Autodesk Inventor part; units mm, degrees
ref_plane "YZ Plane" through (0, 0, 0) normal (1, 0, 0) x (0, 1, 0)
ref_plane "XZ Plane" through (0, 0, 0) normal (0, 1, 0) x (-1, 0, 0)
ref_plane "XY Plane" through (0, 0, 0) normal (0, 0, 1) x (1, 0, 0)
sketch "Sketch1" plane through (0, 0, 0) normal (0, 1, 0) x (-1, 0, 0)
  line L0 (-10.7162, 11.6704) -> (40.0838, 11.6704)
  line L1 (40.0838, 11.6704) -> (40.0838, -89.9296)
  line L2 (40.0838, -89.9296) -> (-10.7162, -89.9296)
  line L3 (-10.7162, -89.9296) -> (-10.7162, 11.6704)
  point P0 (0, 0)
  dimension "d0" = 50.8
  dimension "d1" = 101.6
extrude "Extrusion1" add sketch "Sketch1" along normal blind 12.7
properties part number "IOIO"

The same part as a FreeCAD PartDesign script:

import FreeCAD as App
import Part
import Sketcher

V = App.Vector
Q = App.Units.Quantity

doc = App.newDocument("Part")
body = doc.addObject("PartDesign::Body", "Body")

sketch1 = doc.addObject("Sketcher::SketchObject", "Sketch")
body.addObject(sketch1)
sketch1.AttachmentSupport = (doc.XZ_Plane, [""])
sketch1.MapMode = "FlatFace"
sketch1.addGeometry([
    Part.LineSegment(V(-40, 12, 0), V(11, 12, 0)),
    Part.LineSegment(V(11, 12, 0), V(11, -90, 0)),
    Part.LineSegment(V(11, -90, 0), V(-40, -90, 0)),
    Part.LineSegment(V(-40, -90, 0), V(-40, 12, 0)),
], False)
sketch1.addConstraint([
    Sketcher.Constraint("Coincident", 0, 2, 1, 1),
    Sketcher.Constraint("Coincident", 1, 2, 2, 1),
    Sketcher.Constraint("Coincident", 2, 2, 3, 1),
    Sketcher.Constraint("Coincident", 3, 2, 0, 1),
    Sketcher.Constraint("Horizontal", 0),
    Sketcher.Constraint("Vertical", 1),
    Sketcher.Constraint("Horizontal", 2),
    Sketcher.Constraint("Vertical", 3),
    Sketcher.Constraint("DistanceX", 0, 1, 0, 2, Q("2 in")),
    Sketcher.Constraint("DistanceY", 1, 2, 1, 1, Q("4 in")),
    Sketcher.Constraint("DistanceX", -1, 1, 0, 2, Q("0.4219 in")),
    Sketcher.Constraint("DistanceY", -1, 1, 0, 2, Q("11.6704 mm")),
])
pad1 = doc.addObject("PartDesign::Pad", "Pad")
body.addObject(pad1)
pad1.Profile = sketch1
pad1.Length = Q("0.5 in")
pad1.Reversed = True

doc.recompute()
